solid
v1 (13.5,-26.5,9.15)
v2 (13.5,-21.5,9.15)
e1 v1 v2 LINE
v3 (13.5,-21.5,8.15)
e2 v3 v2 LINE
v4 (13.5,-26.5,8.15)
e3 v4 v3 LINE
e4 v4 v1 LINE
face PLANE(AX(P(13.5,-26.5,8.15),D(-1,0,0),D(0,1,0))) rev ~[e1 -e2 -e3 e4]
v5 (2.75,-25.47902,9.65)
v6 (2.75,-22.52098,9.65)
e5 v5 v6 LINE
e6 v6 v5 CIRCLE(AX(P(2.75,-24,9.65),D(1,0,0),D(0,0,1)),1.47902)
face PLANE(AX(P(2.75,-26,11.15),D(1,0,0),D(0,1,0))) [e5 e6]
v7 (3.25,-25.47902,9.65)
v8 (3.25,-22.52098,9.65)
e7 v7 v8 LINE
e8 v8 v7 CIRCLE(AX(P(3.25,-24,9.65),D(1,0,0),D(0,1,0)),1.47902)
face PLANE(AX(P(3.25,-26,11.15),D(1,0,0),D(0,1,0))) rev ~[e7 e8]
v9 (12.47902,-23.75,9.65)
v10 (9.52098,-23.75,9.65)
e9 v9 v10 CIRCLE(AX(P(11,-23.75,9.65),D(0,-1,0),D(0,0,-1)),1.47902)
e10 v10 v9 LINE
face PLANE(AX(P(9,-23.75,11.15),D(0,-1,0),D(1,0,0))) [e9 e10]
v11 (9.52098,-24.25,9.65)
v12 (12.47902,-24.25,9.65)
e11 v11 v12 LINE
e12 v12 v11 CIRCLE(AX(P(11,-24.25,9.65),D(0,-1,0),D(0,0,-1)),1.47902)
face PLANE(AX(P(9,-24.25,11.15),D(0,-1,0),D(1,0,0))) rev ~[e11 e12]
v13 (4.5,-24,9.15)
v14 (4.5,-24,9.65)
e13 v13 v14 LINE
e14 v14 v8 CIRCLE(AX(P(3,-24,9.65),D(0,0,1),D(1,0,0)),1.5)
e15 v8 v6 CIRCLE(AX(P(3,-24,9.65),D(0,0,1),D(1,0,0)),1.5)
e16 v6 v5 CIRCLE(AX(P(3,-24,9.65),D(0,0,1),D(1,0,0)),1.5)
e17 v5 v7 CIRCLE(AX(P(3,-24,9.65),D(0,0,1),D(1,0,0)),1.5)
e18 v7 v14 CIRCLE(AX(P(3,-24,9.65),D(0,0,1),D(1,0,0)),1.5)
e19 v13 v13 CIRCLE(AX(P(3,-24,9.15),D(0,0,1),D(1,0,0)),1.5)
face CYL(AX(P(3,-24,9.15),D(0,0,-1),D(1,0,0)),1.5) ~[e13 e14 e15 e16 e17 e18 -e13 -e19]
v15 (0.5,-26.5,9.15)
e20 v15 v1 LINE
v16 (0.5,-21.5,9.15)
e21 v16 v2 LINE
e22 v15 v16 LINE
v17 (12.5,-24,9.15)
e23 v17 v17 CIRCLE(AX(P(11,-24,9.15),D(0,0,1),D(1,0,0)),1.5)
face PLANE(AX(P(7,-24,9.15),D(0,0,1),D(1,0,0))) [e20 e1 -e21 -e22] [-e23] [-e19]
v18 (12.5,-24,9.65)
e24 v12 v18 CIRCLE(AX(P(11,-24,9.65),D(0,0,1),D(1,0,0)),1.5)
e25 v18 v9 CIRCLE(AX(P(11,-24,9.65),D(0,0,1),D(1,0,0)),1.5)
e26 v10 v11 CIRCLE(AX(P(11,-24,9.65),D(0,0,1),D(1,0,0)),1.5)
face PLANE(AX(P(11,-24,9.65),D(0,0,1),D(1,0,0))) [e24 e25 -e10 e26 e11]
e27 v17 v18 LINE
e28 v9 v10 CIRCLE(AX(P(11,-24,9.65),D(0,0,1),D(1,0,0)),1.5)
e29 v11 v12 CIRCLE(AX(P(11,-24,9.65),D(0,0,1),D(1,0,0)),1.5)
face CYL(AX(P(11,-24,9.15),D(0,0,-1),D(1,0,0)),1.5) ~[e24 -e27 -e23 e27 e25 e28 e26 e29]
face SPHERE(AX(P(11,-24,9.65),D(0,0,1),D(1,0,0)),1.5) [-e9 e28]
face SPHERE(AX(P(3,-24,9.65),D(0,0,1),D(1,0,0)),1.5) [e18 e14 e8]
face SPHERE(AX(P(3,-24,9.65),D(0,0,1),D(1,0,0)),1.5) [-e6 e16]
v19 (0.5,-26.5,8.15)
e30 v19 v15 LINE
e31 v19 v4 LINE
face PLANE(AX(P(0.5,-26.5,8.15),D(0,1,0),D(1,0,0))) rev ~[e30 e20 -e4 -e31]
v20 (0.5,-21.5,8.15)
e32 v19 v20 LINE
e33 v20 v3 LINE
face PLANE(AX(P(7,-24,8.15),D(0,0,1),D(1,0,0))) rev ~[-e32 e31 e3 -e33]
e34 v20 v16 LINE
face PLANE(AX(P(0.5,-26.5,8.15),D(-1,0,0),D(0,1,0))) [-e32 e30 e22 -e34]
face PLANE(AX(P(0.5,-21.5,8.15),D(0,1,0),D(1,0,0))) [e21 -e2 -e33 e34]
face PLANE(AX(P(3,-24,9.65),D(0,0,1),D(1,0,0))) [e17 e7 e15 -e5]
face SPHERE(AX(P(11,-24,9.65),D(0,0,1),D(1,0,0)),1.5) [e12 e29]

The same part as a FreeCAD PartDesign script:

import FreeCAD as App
import Part
import Sketcher
from FreeCAD import Vector


def edges_at(feature, points):
    """Names of the edges that pass closest to the given points."""
    edges = feature.Shape.Edges
    near = lambda p: min(range(len(edges)), key=lambda i: edges[i].distToShape(Part.Vertex(*p))[0])
    return sorted({f"Edge{near(p) + 1}" for p in points})

doc = App.newDocument("Part")
body = doc.addObject("PartDesign::Body", "Body")

sketch1 = body.newObject("Sketcher::SketchObject", "Sketch")
sketch1.AttachmentSupport = (doc.getObject("XY_Plane"), [""])
sketch1.MapMode = "FlatFace"
sketch1.AttachmentOffset = App.Placement(Vector(0, 0, 8.15), App.Rotation())
sketch1.addGeometry(Part.LineSegment(Vector(0, -22, 0), Vector(0, -26, 0)), False)
sketch1.addGeometry(Part.LineSegment(Vector(0, -26, 0), Vector(14, -26, 0)), False)
sketch1.addGeometry(Part.LineSegment(Vector(14, -26, 0), Vector(14, -22, 0)), False)
sketch1.addGeometry(Part.LineSegment(Vector(14, -22, 0), Vector(0, -22, 0)), False)
sketch1.addConstraint(Sketcher.Constraint("Coincident", 0, 2, 1, 1))
sketch1.addConstraint(Sketcher.Constraint("Coincident", 1, 2, 2, 1))
sketch1.addConstraint(Sketcher.Constraint("Coincident", 2, 2, 3, 1))
sketch1.addConstraint(Sketcher.Constraint("Coincident", 3, 2, 0, 1))
sketch1.addConstraint(Sketcher.Constraint("Vertical", 0))
sketch1.addConstraint(Sketcher.Constraint("Horizontal", 1))
sketch1.addConstraint(Sketcher.Constraint("Vertical", 2))
sketch1.addConstraint(Sketcher.Constraint("Horizontal", 3))
sketch1.addConstraint(Sketcher.Constraint("DistanceX", 1, 1, 1, 2, 13.0))
sketch1.addConstraint(Sketcher.Constraint("DistanceY", 0, 2, 0, 1, 5.0))
sketch1.addConstraint(Sketcher.Constraint("DistanceX", -1, 1, 0, 2, 0.5))
sketch1.addConstraint(Sketcher.Constraint("DistanceY", 0, 2, -1, 1, 26.5))
pad1 = body.newObject("PartDesign::Pad", "Pad")
pad1.Profile = sketch1
pad1.Length = 1

sketch2 = body.newObject("Sketcher::SketchObject", "Sketch001")
sketch2.AttachmentSupport = (doc.getObject("XY_Plane"), [""])
sketch2.MapMode = "FlatFace"
sketch2.AttachmentOffset = App.Placement(Vector(0, 0, 9.15), App.Rotation())
sketch2.addGeometry(Part.Circle(Vector(3, -24, 0), Vector(0, 0, 1), 1.5), False)
sketch2.addGeometry(Part.Circle(Vector(11, -24, 0), Vector(0, 0, 1), 1.5), False)
sketch2.addConstraint(Sketcher.Constraint("Equal", 0, 1))
sketch2.addConstraint(Sketcher.Constraint("Horizontal", 0, 3, 1, 3))
sketch2.addConstraint(Sketcher.Constraint("Diameter", 0, 3.0))
sketch2.addConstraint(Sketcher.Constraint("DistanceX", -1, 1, 0, 3, 3.0))
sketch2.addConstraint(Sketcher.Constraint("DistanceY", 0, 3, -1, 1, 24.0))
sketch2.addConstraint(Sketcher.Constraint("DistanceX", -1, 1, 1, 3, 11.0))
pad2 = body.newObject("PartDesign::Pad", "Pad001")
pad2.Profile = sketch2
pad2.Length = 2
doc.recompute()

fillet = body.newObject("PartDesign::Fillet", "Fillet")
fillet.Base = (pad2, edges_at(pad2, [(9.5, -24, 11.15), (1.5, -24, 11.15)]))
fillet.Radius = 1.5

sketch3 = body.newObject("Sketcher::SketchObject", "Sketch002")
sketch3.AttachmentSupport = (doc.getObject("XY_Plane"), [""])
sketch3.MapMode = "FlatFace"
sketch3.AttachmentOffset = App.Placement(Vector(0, 0, 11.15), App.Rotation())
sketch3.addGeometry(Part.LineSegment(Vector(2.8, -22, 0), Vector(2.8, -26, 0)), False)
sketch3.addGeometry(Part.LineSegment(Vector(2.8, -26, 0), Vector(3.2, -26, 0)), False)
sketch3.addGeometry(Part.LineSegment(Vector(3.2, -26, 0), Vector(3.2, -22, 0)), False)
sketch3.addGeometry(Part.LineSegment(Vector(3.2, -22, 0), Vector(2.8, -22, 0)), False)
sketch3.addGeometry(Part.LineSegment(Vector(9, -23.8, 0), Vector(9, -24.2, 0)), False)
sketch3.addGeometry(Part.LineSegment(Vector(9, -24.2, 0), Vector(13, -24.2, 0)), False)
sketch3.addGeometry(Part.LineSegment(Vector(13, -24.2, 0), Vector(13, -23.8, 0)), False)
sketch3.addGeometry(Part.LineSegment(Vector(13, -23.8, 0), Vector(9, -23.8, 0)), False)
sketch3.addConstraint(Sketcher.Constraint("Coincident", 0, 2, 1, 1))
sketch3.addConstraint(Sketcher.Constraint("Coincident", 1, 2, 2, 1))
sketch3.addConstraint(Sketcher.Constraint("Coincident", 2, 2, 3, 1))
sketch3.addConstraint(Sketcher.Constraint("Coincident", 3, 2, 0, 1))
sketch3.addConstraint(Sketcher.Constraint("Coincident", 4, 2, 5, 1))
sketch3.addConstraint(Sketcher.Constraint("Coincident", 5, 2, 6, 1))
sketch3.addConstraint(Sketcher.Constraint("Coincident", 6, 2, 7, 1))
sketch3.addConstraint(Sketcher.Constraint("Coincident", 7, 2, 4, 1))
sketch3.addConstraint(Sketcher.Constraint("Vertical", 0))
sketch3.addConstraint(Sketcher.Constraint("Horizontal", 1))
sketch3.addConstraint(Sketcher.Constraint("Vertical", 2))
sketch3.addConstraint(Sketcher.Constraint("Horizontal", 3))
sketch3.addConstraint(Sketcher.Constraint("Vertical", 4))
sketch3.addConstraint(Sketcher.Constraint("Horizontal", 5))
sketch3.addConstraint(Sketcher.Constraint("Vertical", 6))
sketch3.addConstraint(Sketcher.Constraint("Horizontal", 7))
sketch3.addConstraint(Sketcher.Constraint("Equal", 7, 0))
sketch3.addConstraint(Sketcher.Constraint("Equal", 3, 4))
sketch3.addConstraint(Sketcher.Constraint("DistanceX", 5, 1, 5, 2, 4.0))
sketch3.addConstraint(Sketcher.Constraint("DistanceX", 1, 1, 1, 2, 0.5))
sketch3.addConstraint(Sketcher.Constraint("DistanceY", 0, 2, -1, 1, 26.0))
sketch3.addConstraint(Sketcher.Constraint("DistanceX", -1, 1, 4, 2, 9.0))
sketch3.addConstraint(Sketcher.Constraint("DistanceX", -1, 1, 0, 2, 2.75))
sketch3.addConstraint(Sketcher.Constraint("DistanceY", 4, 2, -1, 1, 24.25))
pocket1 = body.newObject("PartDesign::Pocket", "Pocket")
pocket1.Profile = sketch3
pocket1.Length = 1.5

doc.recompute()
